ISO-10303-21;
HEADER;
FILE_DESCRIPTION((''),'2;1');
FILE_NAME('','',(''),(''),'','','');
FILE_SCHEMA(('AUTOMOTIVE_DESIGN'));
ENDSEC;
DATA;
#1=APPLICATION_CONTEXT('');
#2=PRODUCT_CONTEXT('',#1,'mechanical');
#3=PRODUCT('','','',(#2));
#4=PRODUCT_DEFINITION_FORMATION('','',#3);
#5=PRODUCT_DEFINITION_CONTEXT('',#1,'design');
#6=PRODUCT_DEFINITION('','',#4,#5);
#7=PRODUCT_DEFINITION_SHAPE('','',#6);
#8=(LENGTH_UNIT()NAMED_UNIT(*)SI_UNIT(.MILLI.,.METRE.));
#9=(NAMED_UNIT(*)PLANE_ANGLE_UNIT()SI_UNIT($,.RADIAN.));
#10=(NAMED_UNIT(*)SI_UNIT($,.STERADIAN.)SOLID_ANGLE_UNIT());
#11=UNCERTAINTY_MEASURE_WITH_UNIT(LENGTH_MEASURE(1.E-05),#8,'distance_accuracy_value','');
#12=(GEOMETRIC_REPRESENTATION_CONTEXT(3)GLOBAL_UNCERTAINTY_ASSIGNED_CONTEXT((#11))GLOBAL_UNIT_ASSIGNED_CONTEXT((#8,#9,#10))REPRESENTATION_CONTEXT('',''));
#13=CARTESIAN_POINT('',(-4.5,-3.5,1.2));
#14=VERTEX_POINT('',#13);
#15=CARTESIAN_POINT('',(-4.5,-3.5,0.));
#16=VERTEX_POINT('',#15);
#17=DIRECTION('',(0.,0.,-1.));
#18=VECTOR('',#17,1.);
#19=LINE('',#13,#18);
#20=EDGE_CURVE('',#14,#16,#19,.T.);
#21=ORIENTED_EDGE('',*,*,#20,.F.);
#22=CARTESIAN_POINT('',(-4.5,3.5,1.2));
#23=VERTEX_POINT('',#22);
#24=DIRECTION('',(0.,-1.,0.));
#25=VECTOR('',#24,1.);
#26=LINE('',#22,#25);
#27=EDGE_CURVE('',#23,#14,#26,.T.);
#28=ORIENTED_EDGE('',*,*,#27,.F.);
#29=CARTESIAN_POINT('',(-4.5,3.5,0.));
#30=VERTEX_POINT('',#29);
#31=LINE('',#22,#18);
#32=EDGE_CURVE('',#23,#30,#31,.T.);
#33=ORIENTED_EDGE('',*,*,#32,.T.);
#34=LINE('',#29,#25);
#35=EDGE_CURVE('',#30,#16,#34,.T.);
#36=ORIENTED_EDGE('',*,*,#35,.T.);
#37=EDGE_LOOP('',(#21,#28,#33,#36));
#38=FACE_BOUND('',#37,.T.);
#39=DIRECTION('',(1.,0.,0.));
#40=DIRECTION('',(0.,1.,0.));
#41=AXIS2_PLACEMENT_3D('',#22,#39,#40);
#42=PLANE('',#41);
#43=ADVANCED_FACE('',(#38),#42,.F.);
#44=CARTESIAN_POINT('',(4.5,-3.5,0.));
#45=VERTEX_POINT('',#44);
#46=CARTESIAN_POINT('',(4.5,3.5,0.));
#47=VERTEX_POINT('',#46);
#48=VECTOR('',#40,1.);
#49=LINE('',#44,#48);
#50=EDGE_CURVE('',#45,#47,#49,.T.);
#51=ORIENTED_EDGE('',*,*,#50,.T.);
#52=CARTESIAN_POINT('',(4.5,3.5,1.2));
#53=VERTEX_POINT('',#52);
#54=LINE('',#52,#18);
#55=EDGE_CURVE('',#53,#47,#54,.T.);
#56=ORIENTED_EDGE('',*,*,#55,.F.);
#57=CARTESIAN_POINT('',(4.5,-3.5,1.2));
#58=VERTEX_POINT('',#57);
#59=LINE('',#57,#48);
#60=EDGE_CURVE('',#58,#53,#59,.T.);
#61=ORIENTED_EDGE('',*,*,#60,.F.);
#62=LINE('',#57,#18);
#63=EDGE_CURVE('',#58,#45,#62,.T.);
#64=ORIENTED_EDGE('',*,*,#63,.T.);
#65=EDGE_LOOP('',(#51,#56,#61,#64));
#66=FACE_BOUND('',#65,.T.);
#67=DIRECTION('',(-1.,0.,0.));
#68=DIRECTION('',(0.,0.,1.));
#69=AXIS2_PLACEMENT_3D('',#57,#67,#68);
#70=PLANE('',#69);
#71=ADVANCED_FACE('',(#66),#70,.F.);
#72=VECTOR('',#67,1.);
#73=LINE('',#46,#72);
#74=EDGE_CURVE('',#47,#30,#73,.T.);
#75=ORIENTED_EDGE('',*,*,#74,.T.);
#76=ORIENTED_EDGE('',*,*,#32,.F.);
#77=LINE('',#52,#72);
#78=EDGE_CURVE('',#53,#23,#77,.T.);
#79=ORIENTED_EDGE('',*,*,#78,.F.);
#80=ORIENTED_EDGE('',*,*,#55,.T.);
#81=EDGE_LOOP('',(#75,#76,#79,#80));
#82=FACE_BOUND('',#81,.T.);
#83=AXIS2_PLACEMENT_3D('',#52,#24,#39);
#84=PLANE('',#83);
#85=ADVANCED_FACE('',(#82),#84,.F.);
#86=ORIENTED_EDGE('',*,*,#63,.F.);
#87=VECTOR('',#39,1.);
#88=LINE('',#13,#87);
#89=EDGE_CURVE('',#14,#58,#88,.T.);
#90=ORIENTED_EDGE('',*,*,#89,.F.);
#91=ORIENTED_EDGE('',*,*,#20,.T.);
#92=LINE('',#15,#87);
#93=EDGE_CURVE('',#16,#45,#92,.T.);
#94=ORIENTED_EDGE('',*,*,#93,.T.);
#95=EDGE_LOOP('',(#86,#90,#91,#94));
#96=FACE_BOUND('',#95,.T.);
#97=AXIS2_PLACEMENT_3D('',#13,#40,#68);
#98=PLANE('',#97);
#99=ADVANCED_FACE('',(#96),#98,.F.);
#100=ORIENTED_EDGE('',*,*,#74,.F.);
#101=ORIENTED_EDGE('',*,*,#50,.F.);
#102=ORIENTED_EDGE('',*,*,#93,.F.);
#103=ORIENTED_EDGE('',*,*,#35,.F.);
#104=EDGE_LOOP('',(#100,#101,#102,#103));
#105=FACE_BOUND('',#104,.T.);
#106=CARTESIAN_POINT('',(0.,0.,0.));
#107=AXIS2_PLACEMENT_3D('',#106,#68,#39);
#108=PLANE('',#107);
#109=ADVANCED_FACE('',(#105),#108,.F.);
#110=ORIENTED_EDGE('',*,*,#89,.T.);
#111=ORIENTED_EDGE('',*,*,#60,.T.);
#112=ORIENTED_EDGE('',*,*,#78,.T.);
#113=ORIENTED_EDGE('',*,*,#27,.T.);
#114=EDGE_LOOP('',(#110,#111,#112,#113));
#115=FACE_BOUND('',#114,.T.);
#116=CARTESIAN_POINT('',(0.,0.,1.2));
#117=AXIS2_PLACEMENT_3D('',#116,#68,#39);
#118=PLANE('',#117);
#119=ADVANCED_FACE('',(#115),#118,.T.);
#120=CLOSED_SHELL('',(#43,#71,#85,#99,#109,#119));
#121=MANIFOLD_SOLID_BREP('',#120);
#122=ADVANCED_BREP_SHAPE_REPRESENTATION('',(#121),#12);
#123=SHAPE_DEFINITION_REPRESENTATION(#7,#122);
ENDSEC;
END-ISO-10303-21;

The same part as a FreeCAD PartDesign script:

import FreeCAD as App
import Part
import Sketcher

V = App.Vector


def add_polygon(sketch, points):
    """Adds a closed chain of lines whose ends are joined by coincident constraints."""
    first, n = sketch.GeometryCount, len(points)
    for a, b in zip(points, points[1:] + points[:1]):
        sketch.addGeometry(Part.LineSegment(App.Vector(*a, 0), App.Vector(*b, 0)), False)
    for i in range(n):
        sketch.addConstraint(Sketcher.Constraint("Coincident", first + i, 2, first + (i + 1) % n, 1))

doc = App.newDocument("Part")
body = doc.addObject("PartDesign::Body", "Body")

# Sketch on XY plane
sketch1 = body.newObject("Sketcher::SketchObject", "Sketch")
sketch1.AttachmentSupport = (doc.getObject("XY_Plane"), [""])
sketch1.MapMode = "FlatFace"
add_polygon(sketch1, [(-4, 4), (-4, -4), (4, -4), (4, 4)])  # lines 0-3
sketch1.addConstraint(Sketcher.Constraint("Vertical", 0))
sketch1.addConstraint(Sketcher.Constraint("Horizontal", 1))
sketch1.addConstraint(Sketcher.Constraint("Vertical", 2))
sketch1.addConstraint(Sketcher.Constraint("Horizontal", 3))
sketch1.addConstraint(Sketcher.Constraint("Symmetric", 0, 2, 2, 2, -1, 1))
sketch1.addConstraint(Sketcher.Constraint("DistanceX", 1, 1, 1, 2, 9.0))
sketch1.addConstraint(Sketcher.Constraint("DistanceY", 0, 2, 0, 1, 7.0))
pad1 = body.newObject("PartDesign::Pad", "Pad")
pad1.Profile = sketch1
pad1.Length = 1.2

doc.recompute()
